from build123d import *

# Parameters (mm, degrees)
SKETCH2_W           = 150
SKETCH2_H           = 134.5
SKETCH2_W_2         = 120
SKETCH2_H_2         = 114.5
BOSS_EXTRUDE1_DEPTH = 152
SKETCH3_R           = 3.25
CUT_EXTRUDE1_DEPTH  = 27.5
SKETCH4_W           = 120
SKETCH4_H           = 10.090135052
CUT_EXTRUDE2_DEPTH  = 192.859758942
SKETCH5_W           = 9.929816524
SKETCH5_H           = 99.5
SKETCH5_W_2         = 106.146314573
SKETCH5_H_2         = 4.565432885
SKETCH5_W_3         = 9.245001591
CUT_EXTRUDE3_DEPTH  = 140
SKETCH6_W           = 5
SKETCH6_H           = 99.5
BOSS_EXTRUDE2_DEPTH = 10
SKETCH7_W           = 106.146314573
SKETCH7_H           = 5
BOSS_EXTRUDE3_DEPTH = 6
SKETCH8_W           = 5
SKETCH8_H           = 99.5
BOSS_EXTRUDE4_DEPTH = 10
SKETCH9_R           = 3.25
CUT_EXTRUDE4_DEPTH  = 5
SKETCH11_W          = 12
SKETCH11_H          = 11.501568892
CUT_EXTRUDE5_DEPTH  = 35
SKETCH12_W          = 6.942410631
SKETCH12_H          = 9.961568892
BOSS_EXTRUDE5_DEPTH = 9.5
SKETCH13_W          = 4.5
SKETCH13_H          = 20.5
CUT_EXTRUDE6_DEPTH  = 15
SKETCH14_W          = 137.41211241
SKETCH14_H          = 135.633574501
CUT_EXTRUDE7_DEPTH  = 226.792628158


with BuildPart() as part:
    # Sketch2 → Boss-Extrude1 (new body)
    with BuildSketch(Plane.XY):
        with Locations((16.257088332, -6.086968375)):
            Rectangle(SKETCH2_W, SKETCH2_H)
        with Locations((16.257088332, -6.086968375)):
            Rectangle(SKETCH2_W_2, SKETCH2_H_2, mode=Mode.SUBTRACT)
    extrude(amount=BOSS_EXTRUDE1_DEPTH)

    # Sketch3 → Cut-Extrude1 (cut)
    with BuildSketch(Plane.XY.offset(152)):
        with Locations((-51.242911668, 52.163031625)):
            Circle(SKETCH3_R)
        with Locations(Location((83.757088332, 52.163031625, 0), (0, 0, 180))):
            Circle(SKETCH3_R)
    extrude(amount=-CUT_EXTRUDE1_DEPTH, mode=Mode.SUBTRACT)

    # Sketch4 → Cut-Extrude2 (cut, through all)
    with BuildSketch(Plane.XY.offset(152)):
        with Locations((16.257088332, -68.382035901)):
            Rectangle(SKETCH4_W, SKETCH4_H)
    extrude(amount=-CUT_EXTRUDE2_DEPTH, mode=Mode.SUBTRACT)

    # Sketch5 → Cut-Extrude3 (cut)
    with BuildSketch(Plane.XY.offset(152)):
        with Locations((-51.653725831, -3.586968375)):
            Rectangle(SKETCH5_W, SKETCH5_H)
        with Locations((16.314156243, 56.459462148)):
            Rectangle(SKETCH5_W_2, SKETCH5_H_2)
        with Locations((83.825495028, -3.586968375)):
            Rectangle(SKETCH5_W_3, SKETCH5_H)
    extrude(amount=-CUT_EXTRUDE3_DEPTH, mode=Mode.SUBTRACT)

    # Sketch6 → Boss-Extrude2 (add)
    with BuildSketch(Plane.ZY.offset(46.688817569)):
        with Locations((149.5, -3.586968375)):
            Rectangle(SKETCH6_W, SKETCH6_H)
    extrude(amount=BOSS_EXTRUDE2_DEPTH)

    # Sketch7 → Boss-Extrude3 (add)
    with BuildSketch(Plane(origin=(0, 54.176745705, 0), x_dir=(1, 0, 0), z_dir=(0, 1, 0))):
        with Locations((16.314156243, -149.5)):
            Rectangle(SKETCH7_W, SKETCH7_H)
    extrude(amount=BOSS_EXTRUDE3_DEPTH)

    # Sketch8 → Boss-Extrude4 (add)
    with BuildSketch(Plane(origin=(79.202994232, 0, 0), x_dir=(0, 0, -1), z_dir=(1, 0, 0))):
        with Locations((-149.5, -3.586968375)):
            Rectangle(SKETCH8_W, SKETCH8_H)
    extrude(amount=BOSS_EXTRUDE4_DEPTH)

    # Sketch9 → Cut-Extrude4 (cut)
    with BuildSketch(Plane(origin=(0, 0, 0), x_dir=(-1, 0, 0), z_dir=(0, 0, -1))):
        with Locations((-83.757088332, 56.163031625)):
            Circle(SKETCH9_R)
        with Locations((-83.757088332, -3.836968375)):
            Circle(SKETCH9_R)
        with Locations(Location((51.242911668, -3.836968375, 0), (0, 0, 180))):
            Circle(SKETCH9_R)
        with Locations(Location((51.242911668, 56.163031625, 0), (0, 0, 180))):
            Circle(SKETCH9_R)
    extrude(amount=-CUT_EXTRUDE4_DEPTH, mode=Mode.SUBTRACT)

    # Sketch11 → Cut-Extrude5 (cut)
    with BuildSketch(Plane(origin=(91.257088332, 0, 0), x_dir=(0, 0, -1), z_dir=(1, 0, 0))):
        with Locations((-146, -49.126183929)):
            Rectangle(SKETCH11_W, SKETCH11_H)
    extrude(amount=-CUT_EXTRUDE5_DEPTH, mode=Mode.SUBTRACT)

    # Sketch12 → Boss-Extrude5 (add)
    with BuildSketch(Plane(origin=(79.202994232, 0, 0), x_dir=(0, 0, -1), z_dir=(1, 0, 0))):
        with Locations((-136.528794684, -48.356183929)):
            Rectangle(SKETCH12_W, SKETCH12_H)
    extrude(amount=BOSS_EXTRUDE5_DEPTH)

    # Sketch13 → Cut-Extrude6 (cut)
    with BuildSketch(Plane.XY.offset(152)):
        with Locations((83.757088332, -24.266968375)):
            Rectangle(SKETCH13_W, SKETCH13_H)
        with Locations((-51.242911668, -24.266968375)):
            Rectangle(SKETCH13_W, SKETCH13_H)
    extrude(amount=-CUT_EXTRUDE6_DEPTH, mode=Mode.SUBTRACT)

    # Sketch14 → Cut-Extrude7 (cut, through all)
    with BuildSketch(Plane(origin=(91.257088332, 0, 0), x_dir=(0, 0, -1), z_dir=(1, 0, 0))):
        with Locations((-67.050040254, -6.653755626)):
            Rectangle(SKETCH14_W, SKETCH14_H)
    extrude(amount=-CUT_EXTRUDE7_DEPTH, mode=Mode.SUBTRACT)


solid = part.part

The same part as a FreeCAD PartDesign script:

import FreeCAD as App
import Part
import Sketcher

V = App.Vector
Q = App.Units.Quantity


def add_polygon(sketch, points):
    """Adds a closed chain of lines whose ends are joined by coincident constraints."""
    first, n = sketch.GeometryCount, len(points)
    for a, b in zip(points, points[1:] + points[:1]):
        sketch.addGeometry(Part.LineSegment(App.Vector(*a, 0), App.Vector(*b, 0)), False)
    for i in range(n):
        sketch.addConstraint(Sketcher.Constraint("Coincident", first + i, 2, first + (i + 1) % n, 1))

doc = App.newDocument("Part")
params = doc.addObject("Spreadsheet::Sheet", "Params")
for row, (alias, value) in enumerate([
    ("sketch1_width", "150 mm"),
    ("sketch1_width2", "120 mm"),
    ("sketch1_height", "134.5 mm"),
    ("sketch1_height2", "114.5 mm"),
    ("pad1_length", "152 mm"),
    ("sketch2_diameter", "6.5 mm"),
    ("pocket1_length", "27.5 mm"),
    ("sketch3_width", "120 mm"),
    ("sketch4_height", "99.5 mm"),
    ("pocket3_length", "140 mm"),
    ("sketch5_height", "5 mm"),
    ("sketch5_width", "99.5 mm"),
    ("pad2_length", "10 mm"),
    ("sketch6_height", "5 mm"),
    ("pad3_length", "6 mm"),
    ("sketch7_height", "5 mm"),
    ("sketch7_width", "99.5 mm"),
    ("pad4_length", "10 mm"),
    ("sketch8_diameter", "6.5 mm"),
    ("pocket4_length", "5 mm"),
    ("sketch9_height", "12 mm"),
    ("pocket5_length", "35 mm"),
    ("pad5_length", "9.5 mm"),
    ("sketch11_width", "4.5 mm"),
    ("sketch11_height", "20.5 mm"),
    ("pocket6_length", "15 mm"),
], start=1):
    params.set(f"A{row}", alias)
    params.set(f"B{row}", "=" + value)
    params.setAlias(f"B{row}", alias)

body = doc.addObject("PartDesign::Body", "Body")

# Sketch on XY plane
sketch1 = body.newObject("Sketcher::SketchObject", "Sketch")
sketch1.AttachmentSupport = (doc.getObject("XY_Plane"), [""])
sketch1.MapMode = "FlatFace"
add_polygon(sketch1, [(-59, 61), (-59, -73), (91, -73), (91, 61)])  # lines 0-3
add_polygon(sketch1, [(76, -63), (-44, -63), (-44, 51), (76, 51)])  # lines 4-7
sketch1.addConstraint(Sketcher.Constraint("Vertical", 0))
sketch1.addConstraint(Sketcher.Constraint("Horizontal", 1))
sketch1.addConstraint(Sketcher.Constraint("Vertical", 2))
sketch1.addConstraint(Sketcher.Constraint("Horizontal", 3))
sketch1.addConstraint(Sketcher.Constraint("Horizontal", 4))
sketch1.addConstraint(Sketcher.Constraint("Vertical", 5))
sketch1.addConstraint(Sketcher.Constraint("Horizontal", 6))
sketch1.addConstraint(Sketcher.Constraint("Vertical", 7))
sketch1.addConstraint(Sketcher.Constraint("DistanceX", 1, 1, 1, 2, Q("150 mm")))
sketch1.addConstraint(Sketcher.Constraint("DistanceX", 4, 2, 4, 1, Q("120 mm")))
sketch1.addConstraint(Sketcher.Constraint("DistanceY", 0, 2, 0, 1, Q("134.5 mm")))
sketch1.addConstraint(Sketcher.Constraint("DistanceY", 5, 1, 5, 2, Q("114.5 mm")))
sketch1.addConstraint(Sketcher.Constraint("DistanceX", 0, 2, 4, 2, Q("15 mm")))
sketch1.addConstraint(Sketcher.Constraint("DistanceY", 0, 2, 4, 2, Q("10 mm")))
sketch1.addConstraint(Sketcher.Constraint("DistanceX", 0, 2, -1, 1, Q("58.742912 mm")))
sketch1.addConstraint(Sketcher.Constraint("DistanceY", 0, 2, -1, 1, Q("73.336968 mm")))
sketch1.setExpression("Constraints[16]", "Params.sketch1_width")
sketch1.setExpression("Constraints[17]", "Params.sketch1_width2")
sketch1.setExpression("Constraints[18]", "Params.sketch1_height")
sketch1.setExpression("Constraints[19]", "Params.sketch1_height2")
pad1 = body.newObject("PartDesign::Pad", "Pad")
pad1.Profile = sketch1
pad1.setExpression("Length", "Params.pad1_length")

# Sketch on XY plane
sketch2 = body.newObject("Sketcher::SketchObject", "Sketch001")
sketch2.AttachmentSupport = (doc.getObject("XY_Plane"), [""])
sketch2.MapMode = "FlatFace"
sketch2.AttachmentOffset = App.Placement(V(0, 0, 152), App.Rotation())
sketch2.addGeometry(Part.Circle(V(-51.2, 52.2, 0), V(0, 0, 1), 3.2), False)
sketch2.addGeometry(Part.Circle(V(83.8, 52.2, 0), V(0, 0, 1), 3.2), False)
sketch2.addConstraint(Sketcher.Constraint("Equal", 0, 1))
sketch2.addConstraint(Sketcher.Constraint("Horizontal", 0, 3, 1, 3))
sketch2.addConstraint(Sketcher.Constraint("Diameter", 0, Q("6.5 mm")))
sketch2.addConstraint(Sketcher.Constraint("DistanceX", 0, 3, 1, 3, Q("135 mm")))
sketch2.addConstraint(Sketcher.Constraint("DistanceX", 0, 3, -1, 1, Q("51.242912 mm")))
sketch2.addConstraint(Sketcher.Constraint("DistanceY", -1, 1, 0, 3, Q("52.163032 mm")))
sketch2.setExpression("Constraints[2]", "Params.sketch2_diameter")
pocket1 = body.newObject("PartDesign::Pocket", "Pocket")
pocket1.Profile = sketch2
pocket1.setExpression("Length", "Params.pocket1_length")

# Sketch on XY plane
sketch3 = body.newObject("Sketcher::SketchObject", "Sketch002")
sketch3.AttachmentSupport = (doc.getObject("XY_Plane"), [""])
sketch3.MapMode = "FlatFace"
sketch3.AttachmentOffset = App.Placement(V(0, 0, 152), App.Rotation())
add_polygon(sketch3, [(-44, -63), (-44, -73), (76, -73), (76, -63)])  # lines 0-3
sketch3.addConstraint(Sketcher.Constraint("Vertical", 0))
sketch3.addConstraint(Sketcher.Constraint("Horizontal", 1))
sketch3.addConstraint(Sketcher.Constraint("Vertical", 2))
sketch3.addConstraint(Sketcher.Constraint("Horizontal", 3))
sketch3.addConstraint(Sketcher.Constraint("DistanceX", 1, 1, 1, 2, Q("120 mm")))
sketch3.addConstraint(Sketcher.Constraint("DistanceY", 0, 2, 0, 1, Q("10.090135 mm")))
sketch3.addConstraint(Sketcher.Constraint("DistanceX", 0, 2, -1, 1, Q("43.742912 mm")))
sketch3.addConstraint(Sketcher.Constraint("DistanceY", 2, 2, -1, 1, Q("63.336968 mm")))
sketch3.setExpression("Constraints[8]", "Params.sketch3_width")
pocket2 = body.newObject("PartDesign::Pocket", "Pocket001")
pocket2.Profile = sketch3
pocket2.Type = "ThroughAll"

# Sketch on XY plane
sketch4 = body.newObject("Sketcher::SketchObject", "Sketch003")
sketch4.AttachmentSupport = (doc.getObject("XY_Plane"), [""])
sketch4.MapMode = "FlatFace"
sketch4.AttachmentOffset = App.Placement(V(0, 0, 152), App.Rotation())
add_polygon(sketch4, [(-56.6, 46.2), (-56.6, -53.3), (-46.7, -53.3), (-46.7, 46.2)])  # lines 0-3
add_polygon(sketch4, [(-36.8, 58.7), (-36.8, 54.2), (69.4, 54.2), (69.4, 58.7)])  # lines 4-7
add_polygon(sketch4, [(79.2, 46.2), (79.2, -53.3), (88.4, -53.3), (88.4, 46.2)])  # lines 8-11
sketch4.addConstraint(Sketcher.Constraint("Vertical", 0))
sketch4.addConstraint(Sketcher.Constraint("Horizontal", 1))
sketch4.addConstraint(Sketcher.Constraint("Vertical", 2))
sketch4.addConstraint(Sketcher.Constraint("Horizontal", 3))
sketch4.addConstraint(Sketcher.Constraint("Vertical", 4))
sketch4.addConstraint(Sketcher.Constraint("Horizontal", 5))
sketch4.addConstraint(Sketcher.Constraint("Vertical", 6))
sketch4.addConstraint(Sketcher.Constraint("Horizontal", 7))
sketch4.addConstraint(Sketcher.Constraint("Vertical", 8))
sketch4.addConstraint(Sketcher.Constraint("Horizontal", 9))
sketch4.addConstraint(Sketcher.Constraint("Vertical", 10))
sketch4.addConstraint(Sketcher.Constraint("Horizontal", 11))
sketch4.addConstraint(Sketcher.Constraint("Horizontal", 1, 2, 8, 2))
sketch4.addConstraint(Sketcher.Constraint("Horizontal", 3, 2, 10, 2))
sketch4.addConstraint(Sketcher.Constraint("DistanceY", 0, 2, 0, 1, Q("99.5 mm")))
sketch4.addConstraint(Sketcher.Constraint("DistanceX", 9, 1, 9, 2, Q("9.245002 mm")))
sketch4.addConstraint(Sketcher.Constraint("DistanceX", 4, 2, -1, 1, Q("36.759001 mm")))
sketch4.addConstraint(Sketcher.Constraint("DistanceX", 1, 1, 1, 2, Q("9.929817 mm")))
sketch4.addConstraint(Sketcher.Constraint("DistanceX", 5, 1, 5, 2, Q("106.146315 mm")))
sketch4.addConstraint(Sketcher.Constraint("DistanceY", 4, 2, 4, 1, Q("4.565433 mm")))
sketch4.addConstraint(Sketcher.Constraint("DistanceY", 0, 2, -1, 1, Q("53.336968 mm")))
sketch4.addConstraint(Sketcher.Constraint("DistanceY", -1, 1, 6, 2, Q("58.742179 mm")))
sketch4.addConstraint(Sketcher.Constraint("DistanceX", 2, 2, 5, 2, Q("116.076131 mm")))
sketch4.addConstraint(Sketcher.Constraint("DistanceX", 5, 2, 8, 2, Q("9.815681 mm")))
sketch4.setExpression("Constraints[26]", "Params.sketch4_height")
pocket3 = body.newObject("PartDesign::Pocket", "Pocket002")
pocket3.Profile = sketch4
pocket3.setExpression("Length", "Params.pocket3_length")

# Sketch on YZ plane
sketch5 = body.newObject("Sketcher::SketchObject", "Sketch004")
sketch5.AttachmentSupport = (doc.getObject("YZ_Plane"), [""])
sketch5.MapMode = "FlatFace"
sketch5.AttachmentOffset = App.Placement(V(0, 0, -46.688818), App.Rotation())
add_polygon(sketch5, [(46, 147), (-53, 147), (-53, 152), (46, 152)])  # lines 0-3
sketch5.addConstraint(Sketcher.Constraint("Horizontal", 0))
sketch5.addConstraint(Sketcher.Constraint("Vertical", 1))
sketch5.addConstraint(Sketcher.Constraint("Horizontal", 2))
sketch5.addConstraint(Sketcher.Constraint("Vertical", 3))
sketch5.addConstraint(Sketcher.Constraint("DistanceY", 1, 1, 1, 2, Q("5 mm")))
sketch5.addConstraint(Sketcher.Constraint("DistanceX", 0, 2, 0, 1, Q("99.5 mm")))
sketch5.addConstraint(Sketcher.Constraint("DistanceY", -1, 1, 0, 2, Q("147 mm")))
sketch5.addConstraint(Sketcher.Constraint("DistanceX", 0, 2, -1, 1, Q("53.336968 mm")))
sketch5.setExpression("Constraints[8]", "Params.sketch5_height")
sketch5.setExpression("Constraints[9]", "Params.sketch5_width")
pad2 = body.newObject("PartDesign::Pad", "Pad001")
pad2.Profile = sketch5
pad2.setExpression("Length", "Params.pad2_length")
pad2.Reversed = True

# Sketch on XZ plane
sketch6 = body.newObject("Sketcher::SketchObject", "Sketch005")
sketch6.AttachmentSupport = (doc.getObject("XZ_Plane"), [""])
sketch6.MapMode = "FlatFace"
sketch6.AttachmentOffset = App.Placement(V(0, 0, -54.176746), App.Rotation())
add_polygon(sketch6, [(-37, 147), (-37, 152), (69, 152), (69, 147)])  # lines 0-3
sketch6.addConstraint(Sketcher.Constraint("Vertical", 0))
sketch6.addConstraint(Sketcher.Constraint("Horizontal", 1))
sketch6.addConstraint(Sketcher.Constraint("Vertical", 2))
sketch6.addConstraint(Sketcher.Constraint("Horizontal", 3))
sketch6.addConstraint(Sketcher.Constraint("DistanceY", 0, 1, 0, 2, Q("5 mm")))
sketch6.addConstraint(Sketcher.Constraint("DistanceY", -1, 1, 0, 2, Q("152 mm")))
sketch6.addConstraint(Sketcher.Constraint("DistanceX", 0, 2, -1, 1, Q("36.759001 mm")))
sketch6.addConstraint(Sketcher.Constraint("DistanceX", 1, 1, 1, 2, Q("106.146315 mm")))
sketch6.setExpression("Constraints[8]", "Params.sketch6_height")
pad3 = body.newObject("PartDesign::Pad", "Pad002")
pad3.Profile = sketch6
pad3.setExpression("Length", "Params.pad3_length")
pad3.Reversed = True

# Sketch on YZ plane
sketch7 = body.newObject("Sketcher::SketchObject", "Sketch006")
sketch7.AttachmentSupport = (doc.getObject("YZ_Plane"), [""])
sketch7.MapMode = "FlatFace"
sketch7.AttachmentOffset = App.Placement(V(0, 0, 79.202994), App.Rotation())
add_polygon(sketch7, [(46, 152), (-53, 152), (-53, 147), (46, 147)])  # lines 0-3
sketch7.addConstraint(Sketcher.Constraint("Horizontal", 0))
sketch7.addConstraint(Sketcher.Constraint("Vertical", 1))
sketch7.addConstraint(Sketcher.Constraint("Horizontal", 2))
sketch7.addConstraint(Sketcher.Constraint("Vertical", 3))
sketch7.addConstraint(Sketcher.Constraint("DistanceY", 1, 2, 1, 1, Q("5 mm")))
sketch7.addConstraint(Sketcher.Constraint("DistanceX", 0, 2, 0, 1, Q("99.5 mm")))
sketch7.addConstraint(Sketcher.Constraint("DistanceY", -1, 1, 0, 2, Q("152 mm")))
sketch7.addConstraint(Sketcher.Constraint("DistanceX", 0, 2, -1, 1, Q("53.336968 mm")))
sketch7.setExpression("Constraints[8]", "Params.sketch7_height")
sketch7.setExpression("Constraints[9]", "Params.sketch7_width")
pad4 = body.newObject("PartDesign::Pad", "Pad003")
pad4.Profile = sketch7
pad4.setExpression("Length", "Params.pad4_length")

# Sketch on XY plane
sketch8 = body.newObject("Sketcher::SketchObject", "Sketch007")
sketch8.AttachmentSupport = (doc.getObject("XY_Plane"), [""])
sketch8.MapMode = "FlatFace"
sketch8.addGeometry(Part.Circle(V(83.8, 56.2, 0), V(0, 0, 1), 3.2), False)
sketch8.addGeometry(Part.Circle(V(83.8, -3.8, 0), V(0, 0, 1), 3.2), False)
sketch8.addGeometry(Part.Circle(V(-51.2, -3.8, 0), V(0, 0, 1), 3.2), False)
sketch8.addGeometry(Part.Circle(V(-51.2, 56.2, 0), V(0, 0, 1), 3.2), False)
sketch8.addConstraint(Sketcher.Constraint("Equal", 0, 1))
sketch8.addConstraint(Sketcher.Constraint("Equal", 1, 2))
sketch8.addConstraint(Sketcher.Constraint("Equal", 2, 3))
sketch8.addConstraint(Sketcher.Constraint("Horizontal", 1, 3, 2, 3))
sketch8.addConstraint(Sketcher.Constraint("Horizontal", 0, 3, 3, 3))
sketch8.addConstraint(Sketcher.Constraint("Vertical", 0, 3, 1, 3))
sketch8.addConstraint(Sketcher.Constraint("Vertical", 2, 3, 3, 3))
sketch8.addConstraint(Sketcher.Constraint("Diameter", 0, Q("6.5 mm")))
sketch8.addConstraint(Sketcher.Constraint("DistanceY", 1, 3, 0, 3, Q("60 mm")))
sketch8.addConstraint(Sketcher.Constraint("DistanceX", 2, 3, 1, 3, Q("135 mm")))
sketch8.addConstraint(Sketcher.Constraint("DistanceX", -1, 1, 0, 3, Q("83.757088 mm")))
sketch8.addConstraint(Sketcher.Constraint("DistanceY", -1, 1, 0, 3, Q("56.163032 mm")))
sketch8.setExpression("Constraints[7]", "Params.sketch8_diameter")
pocket4 = body.newObject("PartDesign::Pocket", "Pocket003")
pocket4.Profile = sketch8
pocket4.setExpression("Length", "Params.pocket4_length")
pocket4.Reversed = True

# Sketch on YZ plane
sketch9 = body.newObject("Sketcher::SketchObject", "Sketch008")
sketch9.AttachmentSupport = (doc.getObject("YZ_Plane"), [""])
sketch9.MapMode = "FlatFace"
sketch9.AttachmentOffset = App.Placement(V(0, 0, 91.257088), App.Rotation())
add_polygon(sketch9, [(-43, 152), (-55, 152), (-55, 140), (-43, 140)])  # lines 0-3
sketch9.addConstraint(Sketcher.Constraint("Horizontal", 0))
sketch9.addConstraint(Sketcher.Constraint("Vertical", 1))
sketch9.addConstraint(Sketcher.Constraint("Horizontal", 2))
sketch9.addConstraint(Sketcher.Constraint("Vertical", 3))
sketch9.addConstraint(Sketcher.Constraint("DistanceY", 1, 2, 1, 1, Q("12 mm")))
sketch9.addConstraint(Sketcher.Constraint("DistanceY", -1, 1, 0, 2, Q("152 mm")))
sketch9.addConstraint(Sketcher.Constraint("DistanceX", 0, 2, 0, 1, Q("11.501569 mm")))
sketch9.addConstraint(Sketcher.Constraint("DistanceX", 2, 2, -1, 1, Q("43.375399 mm")))
sketch9.setExpression("Constraints[8]", "Params.sketch9_height")
pocket5 = body.newObject("PartDesign::Pocket", "Pocket004")
pocket5.Profile = sketch9
pocket5.setExpression("Length", "Params.pocket5_length")

# Sketch on YZ plane
sketch10 = body.newObject("Sketcher::SketchObject", "Sketch009")
sketch10.AttachmentSupport = (doc.getObject("YZ_Plane"), [""])
sketch10.MapMode = "FlatFace"
sketch10.AttachmentOffset = App.Placement(V(0, 0, 79.202994), App.Rotation())
add_polygon(sketch10, [(-43, 140), (-53, 140), (-53, 133), (-43, 133)])  # lines 0-3
sketch10.addConstraint(Sketcher.Constraint("Horizontal", 0))
sketch10.addConstraint(Sketcher.Constraint("Vertical", 1))
sketch10.addConstraint(Sketcher.Constraint("Horizontal", 2))
sketch10.addConstraint(Sketcher.Constraint("Vertical", 3))
sketch10.addConstraint(Sketcher.Constraint("DistanceY", -1, 1, 0, 2, Q("140 mm")))
sketch10.addConstraint(Sketcher.Constraint("DistanceX", 0, 2, 0, 1, Q("9.961569 mm")))
sketch10.addConstraint(Sketcher.Constraint("DistanceY", 1, 2, 1, 1, Q("6.942411 mm")))
sketch10.addConstraint(Sketcher.Constraint("DistanceX", 2, 2, -1, 1, Q("43.375399 mm")))
pad5 = body.newObject("PartDesign::Pad", "Pad004")
pad5.Profile = sketch10
pad5.setExpression("Length", "Params.pad5_length")

# Sketch on XY plane
sketch11 = body.newObject("Sketcher::SketchObject", "Sketch010")
sketch11.AttachmentSupport = (doc.getObject("XY_Plane"), [""])
sketch11.MapMode = "FlatFace"
sketch11.AttachmentOffset = App.Placement(V(0, 0, 152), App.Rotation())
add_polygon(sketch11, [(81.5, -14), (81.5, -34.5), (86, -34.5), (86, -14)])  # lines 0-3
add_polygon(sketch11, [(-53.5, -14), (-53.5, -34.5), (-49, -34.5), (-49, -14)])  # lines 4-7
sketch11.addConstraint(Sketcher.Constraint("Vertical", 0))
sketch11.addConstraint(Sketcher.Constraint("Horizontal", 1))
sketch11.addConstraint(Sketcher.Constraint("Vertical", 2))
sketch11.addConstraint(Sketcher.Constraint("Horizontal", 3))
sketch11.addConstraint(Sketcher.Constraint("Vertical", 4))
sketch11.addConstraint(Sketcher.Constraint("Horizontal", 5))
sketch11.addConstraint(Sketcher.Constraint("Vertical", 6))
sketch11.addConstraint(Sketcher.Constraint("Horizontal", 7))
sketch11.addConstraint(Sketcher.Constraint("Horizontal", 1, 2, 4, 2))
sketch11.addConstraint(Sketcher.Constraint("Horizontal", 3, 2, 6, 2))
sketch11.addConstraint(Sketcher.Constraint("Equal", 3, 5))
sketch11.addConstraint(Sketcher.Constraint("DistanceX", 1, 1, 1, 2, Q("4.5 mm")))
sketch11.addConstraint(Sketcher.Constraint("DistanceY", 0, 2, 0, 1, Q("20.5 mm")))
sketch11.addConstraint(Sketcher.Constraint("DistanceX", 4, 2, 0, 2, Q("135 mm")))
sketch11.addConstraint(Sketcher.Constraint("DistanceX", -1, 1, 0, 2, Q("81.507088 mm")))
sketch11.addConstraint(Sketcher.Constraint("DistanceY", 0, 2, -1, 1, Q("34.516968 mm")))
sketch11.setExpression("Constraints[19]", "Params.sketch11_width")
sketch11.setExpression("Constraints[20]", "Params.sketch11_height")
pocket6 = body.newObject("PartDesign::Pocket", "Pocket005")
pocket6.Profile = sketch11
pocket6.setExpression("Length", "Params.pocket6_length")

# Sketch on YZ plane
sketch12 = body.newObject("Sketcher::SketchObject", "Sketch011")
sketch12.AttachmentSupport = (doc.getObject("YZ_Plane"), [""])
sketch12.MapMode = "FlatFace"
sketch12.AttachmentOffset = App.Placement(V(0, 0, 91.257088), App.Rotation())
add_polygon(sketch12, [(61, 136), (-74, 136), (-74, -2), (61, -2)])  # lines 0-3
sketch12.addConstraint(Sketcher.Constraint("Horizontal", 0))
sketch12.addConstraint(Sketcher.Constraint("Vertical", 1))
sketch12.addConstraint(Sketcher.Constraint("Horizontal", 2))
sketch12.addConstraint(Sketcher.Constraint("Vertical", 3))
sketch12.addConstraint(Sketcher.Constraint("DistanceX", 0, 2, 0, 1, Q("135.633575 mm")))
sketch12.addConstraint(Sketcher.Constraint("DistanceY", 1, 2, 1, 1, Q("137.412112 mm")))
sketch12.addConstraint(Sketcher.Constraint("DistanceX", -1, 1, 2, 2, Q("61.163032 mm")))
sketch12.addConstraint(Sketcher.Constraint("DistanceY", -1, 1, 0, 2, Q("135.756096 mm")))
pocket7 = body.newObject("PartDesign::Pocket", "Pocket006")
pocket7.Profile = sketch12
pocket7.Type = "ThroughAll"

doc.recompute()
